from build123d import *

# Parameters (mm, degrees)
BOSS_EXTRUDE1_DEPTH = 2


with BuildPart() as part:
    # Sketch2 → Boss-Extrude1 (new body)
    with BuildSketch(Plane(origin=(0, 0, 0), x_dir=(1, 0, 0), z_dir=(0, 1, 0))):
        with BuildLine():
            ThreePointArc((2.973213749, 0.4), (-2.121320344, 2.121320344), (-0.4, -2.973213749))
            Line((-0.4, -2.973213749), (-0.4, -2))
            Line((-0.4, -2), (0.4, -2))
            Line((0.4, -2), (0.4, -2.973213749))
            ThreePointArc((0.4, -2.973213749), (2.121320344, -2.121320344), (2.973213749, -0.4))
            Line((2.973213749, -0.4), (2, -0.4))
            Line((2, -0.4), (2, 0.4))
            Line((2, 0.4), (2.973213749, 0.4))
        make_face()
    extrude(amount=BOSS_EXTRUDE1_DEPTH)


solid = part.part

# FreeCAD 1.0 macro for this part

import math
import FreeCAD as App
import Part
import Sketcher
from FreeCAD import Vector
Q = App.Units.Quantity

doc = App.newDocument("Part")
body = doc.addObject("PartDesign::Body", "Body")

sketch1 = body.newObject("Sketcher::SketchObject", "Sketch")
sketch1.AttachmentSupport = (doc.getObject("XZ_Plane"), [""])
sketch1.MapMode = "FlatFace"
sketch1.addGeometry([
    Part.ArcOfCircle(Part.Circle(Vector(0, 0, 0), Vector(0, 0, 1), 3), math.radians(98), math.radians(352)),
    Part.LineSegment(Vector(-0.4, 3, 0), Vector(-0.4, 2, 0)),
    Part.LineSegment(Vector(-0.4, 2, 0), Vector(0.4, 2, 0)),
    Part.LineSegment(Vector(0.4, 2, 0), Vector(0.4, 3, 0)),
    Part.ArcOfCircle(Part.Circle(Vector(0, 0, 0), Vector(0, 0, 1), 3), math.radians(8), math.radians(82)),
    Part.LineSegment(Vector(3, 0.4, 0), Vector(2, 0.4, 0)),
    Part.LineSegment(Vector(2, 0.4, 0), Vector(2, -0.4, 0)),
    Part.LineSegment(Vector(2, -0.4, 0), Vector(3, -0.4, 0)),
], False)
sketch1.addConstraint([
    Sketcher.Constraint("Coincident", 0, 1, 1, 1),
    Sketcher.Constraint("Coincident", 1, 2, 2, 1),
    Sketcher.Constraint("Coincident", 2, 2, 3, 1),
    Sketcher.Constraint("Coincident", 3, 2, 4, 2),
    Sketcher.Constraint("Coincident", 4, 1, 5, 1),
    Sketcher.Constraint("Coincident", 5, 2, 6, 1),
    Sketcher.Constraint("Coincident", 6, 2, 7, 1),
    Sketcher.Constraint("Coincident", 7, 2, 0, 2),
    Sketcher.Constraint("Vertical", 1),
    Sketcher.Constraint("Horizontal", 2),
    Sketcher.Constraint("Vertical", 3),
    Sketcher.Constraint("Horizontal", 5),
    Sketcher.Constraint("Vertical", 6),
    Sketcher.Constraint("Horizontal", 7),
    Sketcher.Constraint("Coincident", 0, 3, -1, 1),
    Sketcher.Constraint("Coincident", 4, 3, -1, 1),
    Sketcher.Constraint("Equal", 0, 4),
    Sketcher.Constraint("Horizontal", 0, 1, 3, 2),
    Sketcher.Constraint("Vertical", 4, 1, 7, 2),
    Sketcher.Constraint("Equal", 7, 1),
    Sketcher.Constraint("Equal", 2, 6),
    Sketcher.Constraint("Radius", 0, Q("3 mm")),
    Sketcher.Constraint("DistanceX", 2, 1, 2, 2, Q("0.8 mm")),
    Sketcher.Constraint("DistanceY", -1, 1, 1, 2, Q("2 mm")),
])
pad1 = body.newObject("PartDesign::Pad", "Pad")
pad1.Profile = sketch1
pad1.Length = 2
pad1.Reversed = True

doc.recompute()
